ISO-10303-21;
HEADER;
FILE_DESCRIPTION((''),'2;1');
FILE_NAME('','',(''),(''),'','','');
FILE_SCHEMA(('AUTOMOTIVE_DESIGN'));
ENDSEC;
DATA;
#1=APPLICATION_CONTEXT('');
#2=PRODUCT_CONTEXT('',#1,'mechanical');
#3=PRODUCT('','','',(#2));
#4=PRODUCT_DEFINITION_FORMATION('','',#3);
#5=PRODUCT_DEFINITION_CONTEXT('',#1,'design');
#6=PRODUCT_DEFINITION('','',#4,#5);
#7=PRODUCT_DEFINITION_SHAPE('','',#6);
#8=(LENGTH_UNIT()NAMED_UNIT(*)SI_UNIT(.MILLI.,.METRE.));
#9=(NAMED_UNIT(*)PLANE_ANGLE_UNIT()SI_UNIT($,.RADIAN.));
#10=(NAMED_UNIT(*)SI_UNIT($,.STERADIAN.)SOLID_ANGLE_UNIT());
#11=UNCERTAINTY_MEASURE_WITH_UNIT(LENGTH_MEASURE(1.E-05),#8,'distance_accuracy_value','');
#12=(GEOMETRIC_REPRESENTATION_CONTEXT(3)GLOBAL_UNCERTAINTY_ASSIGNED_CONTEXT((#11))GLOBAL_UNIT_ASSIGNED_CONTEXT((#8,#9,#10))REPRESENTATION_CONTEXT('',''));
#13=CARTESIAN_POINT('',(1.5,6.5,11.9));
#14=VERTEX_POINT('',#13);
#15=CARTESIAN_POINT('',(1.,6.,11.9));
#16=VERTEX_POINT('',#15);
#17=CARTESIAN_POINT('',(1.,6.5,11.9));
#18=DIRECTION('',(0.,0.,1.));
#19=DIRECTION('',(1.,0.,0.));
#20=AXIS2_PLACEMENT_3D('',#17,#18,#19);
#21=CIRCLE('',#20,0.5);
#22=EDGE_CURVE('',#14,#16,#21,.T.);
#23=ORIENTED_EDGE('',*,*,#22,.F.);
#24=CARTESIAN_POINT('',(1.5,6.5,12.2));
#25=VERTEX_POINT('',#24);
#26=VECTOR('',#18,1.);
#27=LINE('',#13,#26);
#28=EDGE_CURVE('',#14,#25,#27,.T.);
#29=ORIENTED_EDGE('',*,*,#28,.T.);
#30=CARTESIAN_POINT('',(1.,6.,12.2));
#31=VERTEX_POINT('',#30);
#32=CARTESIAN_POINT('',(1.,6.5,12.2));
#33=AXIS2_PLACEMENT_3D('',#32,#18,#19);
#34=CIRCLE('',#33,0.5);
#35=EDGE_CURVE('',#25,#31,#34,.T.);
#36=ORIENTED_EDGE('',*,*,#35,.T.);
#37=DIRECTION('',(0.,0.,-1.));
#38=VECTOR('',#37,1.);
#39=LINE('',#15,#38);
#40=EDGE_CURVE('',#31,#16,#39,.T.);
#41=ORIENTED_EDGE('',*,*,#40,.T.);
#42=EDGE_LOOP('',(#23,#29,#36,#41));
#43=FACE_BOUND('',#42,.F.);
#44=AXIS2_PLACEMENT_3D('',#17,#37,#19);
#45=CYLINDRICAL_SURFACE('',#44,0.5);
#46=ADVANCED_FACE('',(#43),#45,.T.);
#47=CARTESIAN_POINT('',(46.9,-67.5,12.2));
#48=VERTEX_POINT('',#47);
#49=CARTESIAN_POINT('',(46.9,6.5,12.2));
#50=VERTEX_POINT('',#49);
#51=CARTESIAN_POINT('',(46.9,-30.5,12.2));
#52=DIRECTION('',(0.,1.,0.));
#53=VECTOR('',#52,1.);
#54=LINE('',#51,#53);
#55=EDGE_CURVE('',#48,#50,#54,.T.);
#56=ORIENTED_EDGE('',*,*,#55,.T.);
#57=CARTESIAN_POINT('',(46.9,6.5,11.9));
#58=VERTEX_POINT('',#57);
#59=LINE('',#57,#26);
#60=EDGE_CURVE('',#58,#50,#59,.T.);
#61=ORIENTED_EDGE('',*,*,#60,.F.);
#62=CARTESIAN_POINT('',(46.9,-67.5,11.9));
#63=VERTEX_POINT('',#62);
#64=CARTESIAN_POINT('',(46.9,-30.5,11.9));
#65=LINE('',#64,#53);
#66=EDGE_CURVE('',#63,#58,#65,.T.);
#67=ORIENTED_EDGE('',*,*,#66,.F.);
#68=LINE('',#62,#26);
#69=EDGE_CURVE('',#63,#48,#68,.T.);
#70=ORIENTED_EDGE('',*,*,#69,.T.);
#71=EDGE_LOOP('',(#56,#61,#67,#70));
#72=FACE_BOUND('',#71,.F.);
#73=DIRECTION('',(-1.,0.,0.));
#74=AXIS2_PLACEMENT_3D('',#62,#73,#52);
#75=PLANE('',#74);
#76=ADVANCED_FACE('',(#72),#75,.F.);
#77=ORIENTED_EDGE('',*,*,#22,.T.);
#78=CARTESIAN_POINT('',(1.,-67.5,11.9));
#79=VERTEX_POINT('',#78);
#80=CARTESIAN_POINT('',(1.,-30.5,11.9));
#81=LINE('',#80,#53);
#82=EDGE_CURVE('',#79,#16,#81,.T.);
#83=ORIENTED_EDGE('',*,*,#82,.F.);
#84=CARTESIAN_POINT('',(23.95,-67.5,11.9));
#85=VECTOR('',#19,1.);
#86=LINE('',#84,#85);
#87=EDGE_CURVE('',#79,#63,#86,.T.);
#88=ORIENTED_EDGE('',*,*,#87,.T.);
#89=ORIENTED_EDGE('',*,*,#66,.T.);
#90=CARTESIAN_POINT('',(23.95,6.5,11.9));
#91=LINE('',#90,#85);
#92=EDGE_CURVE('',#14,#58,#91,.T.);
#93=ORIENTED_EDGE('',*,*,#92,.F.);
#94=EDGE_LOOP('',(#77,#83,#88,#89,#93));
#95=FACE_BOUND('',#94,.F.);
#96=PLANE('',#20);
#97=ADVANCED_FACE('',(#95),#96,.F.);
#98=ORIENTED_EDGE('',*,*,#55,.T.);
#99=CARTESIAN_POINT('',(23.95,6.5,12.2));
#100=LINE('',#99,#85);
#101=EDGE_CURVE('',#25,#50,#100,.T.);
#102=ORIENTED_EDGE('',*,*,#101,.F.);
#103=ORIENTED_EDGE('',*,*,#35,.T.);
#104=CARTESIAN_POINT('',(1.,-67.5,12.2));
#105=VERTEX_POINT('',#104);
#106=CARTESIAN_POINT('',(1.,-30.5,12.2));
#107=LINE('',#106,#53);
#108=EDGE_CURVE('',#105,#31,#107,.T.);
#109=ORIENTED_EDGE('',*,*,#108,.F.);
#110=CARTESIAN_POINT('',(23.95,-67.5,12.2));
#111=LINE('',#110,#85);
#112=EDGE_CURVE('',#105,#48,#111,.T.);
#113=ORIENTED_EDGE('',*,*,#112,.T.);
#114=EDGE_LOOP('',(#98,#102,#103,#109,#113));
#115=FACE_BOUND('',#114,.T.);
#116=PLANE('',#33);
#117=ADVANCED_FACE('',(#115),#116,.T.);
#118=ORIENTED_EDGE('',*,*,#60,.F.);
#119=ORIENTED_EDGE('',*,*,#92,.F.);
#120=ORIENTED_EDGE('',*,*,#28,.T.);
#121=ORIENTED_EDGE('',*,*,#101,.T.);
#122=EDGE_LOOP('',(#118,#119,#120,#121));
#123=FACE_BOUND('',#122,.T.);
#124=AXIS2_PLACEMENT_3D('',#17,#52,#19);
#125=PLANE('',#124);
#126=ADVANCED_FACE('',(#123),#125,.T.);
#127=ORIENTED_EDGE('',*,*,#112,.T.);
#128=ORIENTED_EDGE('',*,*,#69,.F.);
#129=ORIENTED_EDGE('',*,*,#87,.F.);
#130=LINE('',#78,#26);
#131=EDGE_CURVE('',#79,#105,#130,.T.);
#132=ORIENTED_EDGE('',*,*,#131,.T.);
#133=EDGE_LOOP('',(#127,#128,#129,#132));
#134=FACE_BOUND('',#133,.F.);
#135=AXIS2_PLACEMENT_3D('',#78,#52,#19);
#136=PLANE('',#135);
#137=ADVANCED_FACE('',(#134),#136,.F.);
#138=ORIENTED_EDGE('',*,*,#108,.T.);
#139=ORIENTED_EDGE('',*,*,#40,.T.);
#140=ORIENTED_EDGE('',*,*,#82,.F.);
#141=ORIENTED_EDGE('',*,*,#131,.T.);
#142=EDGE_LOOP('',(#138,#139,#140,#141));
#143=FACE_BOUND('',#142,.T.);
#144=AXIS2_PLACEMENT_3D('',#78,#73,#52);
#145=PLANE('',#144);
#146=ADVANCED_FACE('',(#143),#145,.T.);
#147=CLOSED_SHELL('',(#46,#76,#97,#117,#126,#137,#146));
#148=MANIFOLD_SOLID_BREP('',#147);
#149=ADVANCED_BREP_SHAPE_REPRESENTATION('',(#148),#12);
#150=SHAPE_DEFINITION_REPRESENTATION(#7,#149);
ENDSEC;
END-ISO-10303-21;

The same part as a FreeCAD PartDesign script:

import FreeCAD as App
import Part
import Sketcher
from FreeCAD import Vector

doc = App.newDocument("Part")
body = doc.addObject("PartDesign::Body", "Body")

# Sketch on XY plane
sketch1 = body.newObject("Sketcher::SketchObject", "Sketch")
sketch1.AttachmentSupport = (doc.getObject("XY_Plane"), [""])
sketch1.MapMode = "FlatFace"
sketch1.AttachmentOffset = App.Placement(Vector(0, 0, 11.9), App.Rotation())
sketch1.addGeometry(Part.Circle(Vector(1, 6.5, 0), Vector(0, 0, 1), 0.5), False)
sketch1.addConstraint([
    Sketcher.Constraint("Diameter", 0, 1.0),
    Sketcher.Constraint("DistanceX", -1, 1, 0, 3, 1.0),
    Sketcher.Constraint("DistanceY", -1, 1, 0, 3, 6.5),
])
pad1 = body.newObject("PartDesign::Pad", "Pad")
pad1.Profile = sketch1
pad1.Length = 0.3
body2 = doc.addObject("PartDesign::Body", "Body001")

# Sketch on XY plane
sketch2 = body2.newObject("Sketcher::SketchObject", "Sketch001")
sketch2.AttachmentSupport = (doc.getObject("XY_Plane001"), [""])
sketch2.MapMode = "FlatFace"
sketch2.AttachmentOffset = App.Placement(Vector(0, 0, 11.9), App.Rotation())
sketch2.addGeometry([
    Part.LineSegment(Vector(1, 6, 0), Vector(1, -68, 0)),
    Part.LineSegment(Vector(1, -68, 0), Vector(47, -68, 0)),
    Part.LineSegment(Vector(47, -68, 0), Vector(47, 6, 0)),
    Part.LineSegment(Vector(47, 6, 0), Vector(1, 6, 0)),
], False)
sketch2.addConstraint([
    Sketcher.Constraint("Coincident", 0, 2, 1, 1),
    Sketcher.Constraint("Coincident", 1, 2, 2, 1),
    Sketcher.Constraint("Coincident", 2, 2, 3, 1),
    Sketcher.Constraint("Coincident", 3, 2, 0, 1),
    Sketcher.Constraint("Vertical", 0),
    Sketcher.Constraint("Horizontal", 1),
    Sketcher.Constraint("Vertical", 2),
    Sketcher.Constraint("Horizontal", 3),
    Sketcher.Constraint("DistanceY", 0, 2, 0, 1, 74.0),
    Sketcher.Constraint("DistanceX", 1, 1, 1, 2, 45.9),
    Sketcher.Constraint("DistanceX", -1, 1, 0, 2, 1.0),
    Sketcher.Constraint("DistanceY", 0, 2, -1, 1, 67.5),
])
pad2 = body2.newObject("PartDesign::Pad", "Pad001")
pad2.Profile = sketch2
pad2.Length = 0.3
doc.recompute()

boolean = body2.newObject("PartDesign::Boolean", "Boolean")
boolean.Type = "Fuse"
boolean.addObjects([body])

doc.recompute()
